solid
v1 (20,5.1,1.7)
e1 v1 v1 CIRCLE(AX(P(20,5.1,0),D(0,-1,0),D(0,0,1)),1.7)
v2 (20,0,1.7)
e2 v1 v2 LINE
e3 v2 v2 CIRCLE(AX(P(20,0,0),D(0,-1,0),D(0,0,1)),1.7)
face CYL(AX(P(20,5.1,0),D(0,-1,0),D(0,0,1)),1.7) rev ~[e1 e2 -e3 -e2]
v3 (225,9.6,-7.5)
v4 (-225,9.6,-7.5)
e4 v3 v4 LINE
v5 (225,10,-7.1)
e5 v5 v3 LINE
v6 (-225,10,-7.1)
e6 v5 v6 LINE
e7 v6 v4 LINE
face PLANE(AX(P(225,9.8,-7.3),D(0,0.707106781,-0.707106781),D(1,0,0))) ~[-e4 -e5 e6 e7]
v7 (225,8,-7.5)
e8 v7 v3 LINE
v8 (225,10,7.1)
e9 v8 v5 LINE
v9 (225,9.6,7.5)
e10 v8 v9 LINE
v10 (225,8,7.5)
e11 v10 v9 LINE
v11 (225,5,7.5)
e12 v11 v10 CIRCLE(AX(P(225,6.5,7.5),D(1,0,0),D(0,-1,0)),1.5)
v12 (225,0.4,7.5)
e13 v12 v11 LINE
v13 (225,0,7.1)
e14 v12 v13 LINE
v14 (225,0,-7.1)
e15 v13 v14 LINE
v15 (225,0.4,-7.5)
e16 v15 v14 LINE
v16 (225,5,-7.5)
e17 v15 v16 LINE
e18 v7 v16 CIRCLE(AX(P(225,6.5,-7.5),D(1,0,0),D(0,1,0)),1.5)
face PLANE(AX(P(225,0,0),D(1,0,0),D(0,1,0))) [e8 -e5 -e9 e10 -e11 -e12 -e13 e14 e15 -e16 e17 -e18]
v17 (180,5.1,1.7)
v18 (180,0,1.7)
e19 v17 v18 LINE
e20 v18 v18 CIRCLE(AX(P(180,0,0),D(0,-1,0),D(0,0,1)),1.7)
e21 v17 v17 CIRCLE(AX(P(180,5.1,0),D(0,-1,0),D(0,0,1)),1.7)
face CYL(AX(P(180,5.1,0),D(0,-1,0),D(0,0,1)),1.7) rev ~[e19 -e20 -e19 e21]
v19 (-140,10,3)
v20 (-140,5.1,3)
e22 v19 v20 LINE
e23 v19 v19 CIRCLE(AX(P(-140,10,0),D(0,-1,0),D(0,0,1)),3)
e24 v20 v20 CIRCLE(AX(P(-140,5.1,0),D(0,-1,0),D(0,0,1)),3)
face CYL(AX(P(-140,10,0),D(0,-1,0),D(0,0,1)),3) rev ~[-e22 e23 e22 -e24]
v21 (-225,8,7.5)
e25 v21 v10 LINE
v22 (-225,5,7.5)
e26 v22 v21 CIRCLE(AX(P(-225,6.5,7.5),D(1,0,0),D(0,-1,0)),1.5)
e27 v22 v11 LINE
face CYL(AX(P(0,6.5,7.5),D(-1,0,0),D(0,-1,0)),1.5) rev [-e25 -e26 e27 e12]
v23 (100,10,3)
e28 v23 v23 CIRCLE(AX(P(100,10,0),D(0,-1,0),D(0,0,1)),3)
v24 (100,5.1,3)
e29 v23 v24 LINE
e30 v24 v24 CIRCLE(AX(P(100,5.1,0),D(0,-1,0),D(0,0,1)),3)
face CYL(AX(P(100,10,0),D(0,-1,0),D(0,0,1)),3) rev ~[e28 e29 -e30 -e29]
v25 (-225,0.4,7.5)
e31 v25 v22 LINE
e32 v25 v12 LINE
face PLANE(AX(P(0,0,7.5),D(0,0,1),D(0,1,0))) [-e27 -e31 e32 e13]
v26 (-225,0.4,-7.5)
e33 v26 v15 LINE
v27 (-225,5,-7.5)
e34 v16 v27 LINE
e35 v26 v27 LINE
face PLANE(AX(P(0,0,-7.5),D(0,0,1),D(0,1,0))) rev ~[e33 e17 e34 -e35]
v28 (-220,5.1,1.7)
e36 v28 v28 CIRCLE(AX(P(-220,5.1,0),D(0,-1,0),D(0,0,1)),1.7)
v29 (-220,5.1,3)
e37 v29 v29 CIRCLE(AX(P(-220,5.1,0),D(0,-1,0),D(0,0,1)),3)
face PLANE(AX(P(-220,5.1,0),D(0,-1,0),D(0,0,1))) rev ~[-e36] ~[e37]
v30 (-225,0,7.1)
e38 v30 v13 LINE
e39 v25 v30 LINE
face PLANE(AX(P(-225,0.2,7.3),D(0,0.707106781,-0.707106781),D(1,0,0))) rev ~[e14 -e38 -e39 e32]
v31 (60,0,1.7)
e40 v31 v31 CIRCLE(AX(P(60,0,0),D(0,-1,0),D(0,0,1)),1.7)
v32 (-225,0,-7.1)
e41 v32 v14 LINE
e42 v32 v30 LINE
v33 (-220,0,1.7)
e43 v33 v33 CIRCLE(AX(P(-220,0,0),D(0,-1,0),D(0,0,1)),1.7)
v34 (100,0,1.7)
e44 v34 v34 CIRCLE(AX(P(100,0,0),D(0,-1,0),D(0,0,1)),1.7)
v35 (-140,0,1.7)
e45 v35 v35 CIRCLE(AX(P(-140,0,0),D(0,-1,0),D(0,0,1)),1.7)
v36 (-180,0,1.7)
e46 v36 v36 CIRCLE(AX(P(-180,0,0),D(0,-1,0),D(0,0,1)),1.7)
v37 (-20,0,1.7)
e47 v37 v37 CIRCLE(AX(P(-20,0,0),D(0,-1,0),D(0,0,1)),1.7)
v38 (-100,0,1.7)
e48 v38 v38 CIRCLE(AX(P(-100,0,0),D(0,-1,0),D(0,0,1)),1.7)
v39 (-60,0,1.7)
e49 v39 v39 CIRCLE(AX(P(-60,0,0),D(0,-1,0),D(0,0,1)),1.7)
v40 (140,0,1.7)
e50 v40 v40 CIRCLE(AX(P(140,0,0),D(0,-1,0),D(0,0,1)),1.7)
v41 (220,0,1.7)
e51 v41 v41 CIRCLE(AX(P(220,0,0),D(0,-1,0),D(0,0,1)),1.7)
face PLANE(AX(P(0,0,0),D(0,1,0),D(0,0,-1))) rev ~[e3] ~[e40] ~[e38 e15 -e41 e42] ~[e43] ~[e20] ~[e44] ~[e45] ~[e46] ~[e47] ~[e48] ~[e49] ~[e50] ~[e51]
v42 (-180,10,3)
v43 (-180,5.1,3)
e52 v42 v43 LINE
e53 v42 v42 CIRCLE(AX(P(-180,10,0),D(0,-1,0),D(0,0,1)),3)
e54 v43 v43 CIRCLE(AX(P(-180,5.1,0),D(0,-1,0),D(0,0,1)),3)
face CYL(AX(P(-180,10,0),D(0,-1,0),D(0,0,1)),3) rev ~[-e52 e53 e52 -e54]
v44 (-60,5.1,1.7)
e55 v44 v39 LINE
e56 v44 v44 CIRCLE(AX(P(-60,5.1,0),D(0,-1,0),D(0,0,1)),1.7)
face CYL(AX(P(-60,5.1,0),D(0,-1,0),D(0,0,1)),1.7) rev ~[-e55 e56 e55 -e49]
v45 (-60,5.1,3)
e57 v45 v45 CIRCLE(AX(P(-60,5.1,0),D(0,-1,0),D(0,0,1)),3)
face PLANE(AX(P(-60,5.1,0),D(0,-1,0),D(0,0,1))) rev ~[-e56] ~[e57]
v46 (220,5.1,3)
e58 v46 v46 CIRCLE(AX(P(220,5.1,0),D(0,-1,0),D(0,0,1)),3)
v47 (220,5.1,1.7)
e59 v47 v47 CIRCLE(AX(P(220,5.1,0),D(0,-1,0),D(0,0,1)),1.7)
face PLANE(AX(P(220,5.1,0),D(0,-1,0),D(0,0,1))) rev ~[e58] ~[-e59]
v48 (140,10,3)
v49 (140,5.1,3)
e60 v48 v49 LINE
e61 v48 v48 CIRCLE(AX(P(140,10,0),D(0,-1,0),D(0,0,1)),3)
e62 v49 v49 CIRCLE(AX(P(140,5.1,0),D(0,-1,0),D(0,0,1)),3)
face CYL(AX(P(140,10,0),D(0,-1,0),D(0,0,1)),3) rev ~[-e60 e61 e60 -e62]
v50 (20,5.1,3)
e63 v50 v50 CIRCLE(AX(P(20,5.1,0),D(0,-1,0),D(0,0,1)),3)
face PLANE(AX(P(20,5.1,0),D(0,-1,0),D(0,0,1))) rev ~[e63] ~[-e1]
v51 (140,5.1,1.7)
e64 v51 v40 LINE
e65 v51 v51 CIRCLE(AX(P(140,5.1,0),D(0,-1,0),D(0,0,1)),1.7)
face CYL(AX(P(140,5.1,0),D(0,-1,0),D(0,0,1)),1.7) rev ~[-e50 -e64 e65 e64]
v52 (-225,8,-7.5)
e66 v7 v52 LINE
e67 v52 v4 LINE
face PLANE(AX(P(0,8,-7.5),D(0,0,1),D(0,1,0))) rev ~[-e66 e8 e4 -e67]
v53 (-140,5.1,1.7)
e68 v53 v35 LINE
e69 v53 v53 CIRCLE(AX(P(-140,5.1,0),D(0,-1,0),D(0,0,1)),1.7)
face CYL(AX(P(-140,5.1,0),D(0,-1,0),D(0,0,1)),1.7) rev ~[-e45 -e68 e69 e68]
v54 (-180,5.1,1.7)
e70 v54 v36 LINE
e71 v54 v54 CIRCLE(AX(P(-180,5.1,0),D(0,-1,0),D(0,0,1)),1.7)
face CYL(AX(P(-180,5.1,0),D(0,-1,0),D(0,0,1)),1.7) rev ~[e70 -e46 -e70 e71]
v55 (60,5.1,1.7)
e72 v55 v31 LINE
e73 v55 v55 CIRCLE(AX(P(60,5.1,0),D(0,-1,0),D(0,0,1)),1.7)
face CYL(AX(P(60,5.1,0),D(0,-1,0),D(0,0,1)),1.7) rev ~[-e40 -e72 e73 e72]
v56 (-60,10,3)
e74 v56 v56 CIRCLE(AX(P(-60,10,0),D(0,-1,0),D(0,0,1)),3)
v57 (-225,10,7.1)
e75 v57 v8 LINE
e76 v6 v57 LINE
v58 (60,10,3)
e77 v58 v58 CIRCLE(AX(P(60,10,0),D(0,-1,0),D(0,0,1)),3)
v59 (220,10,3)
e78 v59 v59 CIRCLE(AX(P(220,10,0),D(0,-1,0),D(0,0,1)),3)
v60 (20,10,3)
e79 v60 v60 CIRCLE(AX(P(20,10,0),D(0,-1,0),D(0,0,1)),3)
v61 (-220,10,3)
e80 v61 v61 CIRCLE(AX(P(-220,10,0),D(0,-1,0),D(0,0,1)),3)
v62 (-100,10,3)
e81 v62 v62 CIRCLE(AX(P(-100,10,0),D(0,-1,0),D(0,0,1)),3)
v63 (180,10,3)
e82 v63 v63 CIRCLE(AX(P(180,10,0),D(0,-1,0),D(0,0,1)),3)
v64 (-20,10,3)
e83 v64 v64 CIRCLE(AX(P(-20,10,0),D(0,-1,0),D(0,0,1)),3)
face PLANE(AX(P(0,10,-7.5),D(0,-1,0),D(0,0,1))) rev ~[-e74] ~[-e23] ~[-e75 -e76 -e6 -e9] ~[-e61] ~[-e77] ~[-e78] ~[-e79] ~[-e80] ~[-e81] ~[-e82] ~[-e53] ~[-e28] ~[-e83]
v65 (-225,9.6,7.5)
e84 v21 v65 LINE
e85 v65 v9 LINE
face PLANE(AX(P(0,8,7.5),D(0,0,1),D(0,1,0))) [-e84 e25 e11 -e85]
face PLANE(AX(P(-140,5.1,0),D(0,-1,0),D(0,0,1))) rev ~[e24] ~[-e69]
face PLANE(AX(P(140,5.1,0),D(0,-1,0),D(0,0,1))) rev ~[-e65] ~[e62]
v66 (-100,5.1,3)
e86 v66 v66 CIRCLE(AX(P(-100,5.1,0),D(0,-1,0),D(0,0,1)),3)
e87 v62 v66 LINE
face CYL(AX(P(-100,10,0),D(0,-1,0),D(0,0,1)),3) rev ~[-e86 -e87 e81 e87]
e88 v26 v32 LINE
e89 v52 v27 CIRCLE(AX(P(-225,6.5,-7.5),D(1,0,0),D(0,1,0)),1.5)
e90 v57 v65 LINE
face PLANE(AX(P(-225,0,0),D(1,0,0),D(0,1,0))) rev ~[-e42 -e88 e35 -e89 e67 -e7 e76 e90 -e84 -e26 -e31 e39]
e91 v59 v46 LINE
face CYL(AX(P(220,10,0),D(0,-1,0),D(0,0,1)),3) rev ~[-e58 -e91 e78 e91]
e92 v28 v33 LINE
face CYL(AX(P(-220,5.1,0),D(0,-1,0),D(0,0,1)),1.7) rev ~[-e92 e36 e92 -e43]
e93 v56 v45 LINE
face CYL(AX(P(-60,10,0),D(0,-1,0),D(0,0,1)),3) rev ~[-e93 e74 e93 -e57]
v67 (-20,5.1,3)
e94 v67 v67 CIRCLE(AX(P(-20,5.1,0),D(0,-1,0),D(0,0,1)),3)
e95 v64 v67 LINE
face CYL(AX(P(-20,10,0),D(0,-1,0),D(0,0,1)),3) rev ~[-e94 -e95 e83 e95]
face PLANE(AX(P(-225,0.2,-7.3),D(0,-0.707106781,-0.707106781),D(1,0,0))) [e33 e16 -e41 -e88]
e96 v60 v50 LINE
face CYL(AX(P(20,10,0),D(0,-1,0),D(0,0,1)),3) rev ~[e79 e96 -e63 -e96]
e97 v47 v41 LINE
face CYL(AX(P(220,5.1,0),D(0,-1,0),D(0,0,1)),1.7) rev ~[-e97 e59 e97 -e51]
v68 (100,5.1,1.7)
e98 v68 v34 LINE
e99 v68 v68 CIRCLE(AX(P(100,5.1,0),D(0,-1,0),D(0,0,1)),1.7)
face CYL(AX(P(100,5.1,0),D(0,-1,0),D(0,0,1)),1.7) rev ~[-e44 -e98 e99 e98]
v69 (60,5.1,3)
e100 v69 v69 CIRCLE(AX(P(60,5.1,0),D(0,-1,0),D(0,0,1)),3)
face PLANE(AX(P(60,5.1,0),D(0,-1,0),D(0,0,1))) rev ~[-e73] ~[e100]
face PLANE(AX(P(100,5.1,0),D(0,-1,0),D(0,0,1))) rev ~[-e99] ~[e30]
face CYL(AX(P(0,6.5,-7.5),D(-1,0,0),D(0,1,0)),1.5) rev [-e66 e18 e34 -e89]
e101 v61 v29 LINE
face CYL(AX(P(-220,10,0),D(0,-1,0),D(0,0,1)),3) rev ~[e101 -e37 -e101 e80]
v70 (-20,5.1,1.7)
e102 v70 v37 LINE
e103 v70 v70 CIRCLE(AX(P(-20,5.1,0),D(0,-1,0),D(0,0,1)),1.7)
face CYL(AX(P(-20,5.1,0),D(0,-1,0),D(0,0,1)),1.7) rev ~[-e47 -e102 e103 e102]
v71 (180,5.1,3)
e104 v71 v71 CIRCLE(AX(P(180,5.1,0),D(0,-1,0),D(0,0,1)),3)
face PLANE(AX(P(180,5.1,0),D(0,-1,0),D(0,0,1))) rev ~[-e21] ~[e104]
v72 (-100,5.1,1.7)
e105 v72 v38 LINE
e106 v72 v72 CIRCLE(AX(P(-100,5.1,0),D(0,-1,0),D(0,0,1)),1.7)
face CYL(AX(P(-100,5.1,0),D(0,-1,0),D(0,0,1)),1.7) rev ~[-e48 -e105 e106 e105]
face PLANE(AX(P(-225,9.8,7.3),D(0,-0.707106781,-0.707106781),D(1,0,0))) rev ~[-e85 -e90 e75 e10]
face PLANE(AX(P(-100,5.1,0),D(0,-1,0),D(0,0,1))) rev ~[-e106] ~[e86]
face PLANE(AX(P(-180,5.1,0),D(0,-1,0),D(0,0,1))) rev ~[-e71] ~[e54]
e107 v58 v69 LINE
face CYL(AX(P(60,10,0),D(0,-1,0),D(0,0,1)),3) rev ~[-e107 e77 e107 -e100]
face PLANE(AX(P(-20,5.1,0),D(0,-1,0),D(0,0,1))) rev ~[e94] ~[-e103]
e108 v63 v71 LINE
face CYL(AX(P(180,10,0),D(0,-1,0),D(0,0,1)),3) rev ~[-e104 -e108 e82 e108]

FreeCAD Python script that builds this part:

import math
import FreeCAD as App
import Part
import Sketcher


def edges_at(feature, points):
    """Names of the edges that pass closest to the given points."""
    edges = feature.Shape.Edges
    near = lambda p: min(range(len(edges)), key=lambda i: edges[i].distToShape(Part.Vertex(*p))[0])
    return sorted({f"Edge{near(p) + 1}" for p in points})

doc = App.newDocument("Part")
body = doc.addObject("PartDesign::Body", "Body")

sketch1 = body.newObject("Sketcher::SketchObject", "Sketch")
sketch1.AttachmentSupport = (doc.getObject("YZ_Plane"), [""])
sketch1.MapMode = "FlatFace"
sketch1.addGeometry(Part.LineSegment(App.Vector(10, -7.5, 0), App.Vector(10, 7.5, 0)), False)
sketch1.addGeometry(Part.LineSegment(App.Vector(10, 7.5, 0), App.Vector(8, 7.5, 0)), False)
sketch1.addGeometry(Part.ArcOfCircle(Part.Circle(App.Vector(6.5, 7.5, 0), App.Vector(0, 0, 1), 1.5), math.radians(180), math.radians(360)), False)
sketch1.addGeometry(Part.LineSegment(App.Vector(5, 7.5, 0), App.Vector(0, 7.5, 0)), False)
sketch1.addGeometry(Part.LineSegment(App.Vector(0, 7.5, 0), App.Vector(0, -7.5, 0)), False)
sketch1.addGeometry(Part.LineSegment(App.Vector(0, -7.5, 0), App.Vector(5, -7.5, 0)), False)
sketch1.addGeometry(Part.ArcOfCircle(Part.Circle(App.Vector(6.5, -7.5, 0), App.Vector(0, 0, 1), 1.5), math.radians(0), math.radians(180)), False)
sketch1.addGeometry(Part.LineSegment(App.Vector(8, -7.5, 0), App.Vector(10, -7.5, 0)), False)
sketch1.addConstraint(Sketcher.Constraint("Coincident", 0, 2, 1, 1))
sketch1.addConstraint(Sketcher.Constraint("Coincident", 1, 2, 2, 2))
sketch1.addConstraint(Sketcher.Constraint("Coincident", 2, 1, 3, 1))
sketch1.addConstraint(Sketcher.Constraint("Coincident", 3, 2, 4, 1))
sketch1.addConstraint(Sketcher.Constraint("Coincident", 4, 2, 5, 1))
sketch1.addConstraint(Sketcher.Constraint("Coincident", 5, 2, 6, 2))
sketch1.addConstraint(Sketcher.Constraint("Coincident", 6, 1, 7, 1))
sketch1.addConstraint(Sketcher.Constraint("Coincident", 7, 2, 0, 1))
sketch1.addConstraint(Sketcher.Constraint("Vertical", 0))
sketch1.addConstraint(Sketcher.Constraint("Horizontal", 1))
sketch1.addConstraint(Sketcher.Constraint("Horizontal", 3))
sketch1.addConstraint(Sketcher.Constraint("Vertical", 4))
sketch1.addConstraint(Sketcher.Constraint("Horizontal", 5))
sketch1.addConstraint(Sketcher.Constraint("Horizontal", 7))
sketch1.addConstraint(Sketcher.Constraint("Equal", 2, 6))
sketch1.addConstraint(Sketcher.Constraint("Symmetric", 3, 2, 4, 2, -1, 1))
sketch1.addConstraint(Sketcher.Constraint("Symmetric", 2, 3, 6, 3, -1))
sketch1.addConstraint(Sketcher.Constraint("Horizontal", 2, 3, 0, 2))
sketch1.addConstraint(Sketcher.Constraint("Horizontal", 1, 2, 2, 1))
sketch1.addConstraint(Sketcher.Constraint("Horizontal", 5, 2, 6, 1))
sketch1.addConstraint(Sketcher.Constraint("Radius", 2, 1.5))
sketch1.addConstraint(Sketcher.Constraint("DistanceY", 0, 1, 0, 2, 15.0))
sketch1.addConstraint(Sketcher.Constraint("DistanceX", -1, 1, 0, 2, 10.0))
sketch1.addConstraint(Sketcher.Constraint("DistanceX", 2, 3, 0, 2, 3.5))
pad1 = body.newObject("PartDesign::Pad", "Pad")
pad1.Profile = sketch1
pad1.Length = 450
pad1.Midplane = True
doc.recompute()

chamfer = body.newObject("PartDesign::Chamfer", "Chamfer")
chamfer.Base = (pad1, edges_at(pad1, [(0, 10, 7.5), (0, 10, -7.5)]))
chamfer.ChamferType = "Two distances"
chamfer.Size = 0.4
chamfer.Size2 = 0.4
doc.recompute()

chamfer2 = body.newObject("PartDesign::Chamfer", "Chamfer001")
chamfer2.Base = (chamfer, edges_at(chamfer, [(0, 0, 7.5)]))
chamfer2.ChamferType = "Two distances"
chamfer2.Size = 0.4
chamfer2.Size2 = 0.4
doc.recompute()

chamfer3 = body.newObject("PartDesign::Chamfer", "Chamfer002")
chamfer3.Base = (chamfer2, edges_at(chamfer2, [(0, 0, -7.5)]))
chamfer3.ChamferType = "Two distances"
chamfer3.Size = 0.4
chamfer3.Size2 = 0.4

sketch2 = body.newObject("Sketcher::SketchObject", "Sketch001")
sketch2.AttachmentSupport = (doc.getObject("XZ_Plane"), [""])
sketch2.MapMode = "FlatFace"
sketch2.AttachmentOffset = App.Placement(App.Vector(0, 0, -10), App.Rotation())
sketch2.addGeometry(Part.Circle(App.Vector(220, 0, 0), App.Vector(0, 0, 1), 1.7), False)
sketch2.addConstraint(Sketcher.Constraint("PointOnObject", 0, 3, -1))
sketch2.addConstraint(Sketcher.Constraint("Diameter", 0, 3.4))
sketch2.addConstraint(Sketcher.Constraint("DistanceX", -1, 1, 0, 3, 220.0))
doc.recompute()
hole = body.newObject("PartDesign::Hole", "Hole")
hole.Profile = sketch2
hole.ThreadType = "None"
hole.Diameter = 3.4
hole.DepthType = "ThroughAll"
hole.HoleCutType = "Counterbore"
hole.HoleCutDiameter = 6
hole.HoleCutDepth = 4.9
hole.Reversed = True
doc.recompute()

linearpattern = body.newObject("PartDesign::LinearPattern", "LinearPattern")
linearpattern.Originals = [hole]
linearpattern.Direction = (doc.getObject("X_Axis"), [""])
linearpattern.Mode = "offset"
linearpattern.Offset = 40
linearpattern.Occurrences = 12
linearpattern.Reversed = True
body.Tip = linearpattern

doc.recompute()
